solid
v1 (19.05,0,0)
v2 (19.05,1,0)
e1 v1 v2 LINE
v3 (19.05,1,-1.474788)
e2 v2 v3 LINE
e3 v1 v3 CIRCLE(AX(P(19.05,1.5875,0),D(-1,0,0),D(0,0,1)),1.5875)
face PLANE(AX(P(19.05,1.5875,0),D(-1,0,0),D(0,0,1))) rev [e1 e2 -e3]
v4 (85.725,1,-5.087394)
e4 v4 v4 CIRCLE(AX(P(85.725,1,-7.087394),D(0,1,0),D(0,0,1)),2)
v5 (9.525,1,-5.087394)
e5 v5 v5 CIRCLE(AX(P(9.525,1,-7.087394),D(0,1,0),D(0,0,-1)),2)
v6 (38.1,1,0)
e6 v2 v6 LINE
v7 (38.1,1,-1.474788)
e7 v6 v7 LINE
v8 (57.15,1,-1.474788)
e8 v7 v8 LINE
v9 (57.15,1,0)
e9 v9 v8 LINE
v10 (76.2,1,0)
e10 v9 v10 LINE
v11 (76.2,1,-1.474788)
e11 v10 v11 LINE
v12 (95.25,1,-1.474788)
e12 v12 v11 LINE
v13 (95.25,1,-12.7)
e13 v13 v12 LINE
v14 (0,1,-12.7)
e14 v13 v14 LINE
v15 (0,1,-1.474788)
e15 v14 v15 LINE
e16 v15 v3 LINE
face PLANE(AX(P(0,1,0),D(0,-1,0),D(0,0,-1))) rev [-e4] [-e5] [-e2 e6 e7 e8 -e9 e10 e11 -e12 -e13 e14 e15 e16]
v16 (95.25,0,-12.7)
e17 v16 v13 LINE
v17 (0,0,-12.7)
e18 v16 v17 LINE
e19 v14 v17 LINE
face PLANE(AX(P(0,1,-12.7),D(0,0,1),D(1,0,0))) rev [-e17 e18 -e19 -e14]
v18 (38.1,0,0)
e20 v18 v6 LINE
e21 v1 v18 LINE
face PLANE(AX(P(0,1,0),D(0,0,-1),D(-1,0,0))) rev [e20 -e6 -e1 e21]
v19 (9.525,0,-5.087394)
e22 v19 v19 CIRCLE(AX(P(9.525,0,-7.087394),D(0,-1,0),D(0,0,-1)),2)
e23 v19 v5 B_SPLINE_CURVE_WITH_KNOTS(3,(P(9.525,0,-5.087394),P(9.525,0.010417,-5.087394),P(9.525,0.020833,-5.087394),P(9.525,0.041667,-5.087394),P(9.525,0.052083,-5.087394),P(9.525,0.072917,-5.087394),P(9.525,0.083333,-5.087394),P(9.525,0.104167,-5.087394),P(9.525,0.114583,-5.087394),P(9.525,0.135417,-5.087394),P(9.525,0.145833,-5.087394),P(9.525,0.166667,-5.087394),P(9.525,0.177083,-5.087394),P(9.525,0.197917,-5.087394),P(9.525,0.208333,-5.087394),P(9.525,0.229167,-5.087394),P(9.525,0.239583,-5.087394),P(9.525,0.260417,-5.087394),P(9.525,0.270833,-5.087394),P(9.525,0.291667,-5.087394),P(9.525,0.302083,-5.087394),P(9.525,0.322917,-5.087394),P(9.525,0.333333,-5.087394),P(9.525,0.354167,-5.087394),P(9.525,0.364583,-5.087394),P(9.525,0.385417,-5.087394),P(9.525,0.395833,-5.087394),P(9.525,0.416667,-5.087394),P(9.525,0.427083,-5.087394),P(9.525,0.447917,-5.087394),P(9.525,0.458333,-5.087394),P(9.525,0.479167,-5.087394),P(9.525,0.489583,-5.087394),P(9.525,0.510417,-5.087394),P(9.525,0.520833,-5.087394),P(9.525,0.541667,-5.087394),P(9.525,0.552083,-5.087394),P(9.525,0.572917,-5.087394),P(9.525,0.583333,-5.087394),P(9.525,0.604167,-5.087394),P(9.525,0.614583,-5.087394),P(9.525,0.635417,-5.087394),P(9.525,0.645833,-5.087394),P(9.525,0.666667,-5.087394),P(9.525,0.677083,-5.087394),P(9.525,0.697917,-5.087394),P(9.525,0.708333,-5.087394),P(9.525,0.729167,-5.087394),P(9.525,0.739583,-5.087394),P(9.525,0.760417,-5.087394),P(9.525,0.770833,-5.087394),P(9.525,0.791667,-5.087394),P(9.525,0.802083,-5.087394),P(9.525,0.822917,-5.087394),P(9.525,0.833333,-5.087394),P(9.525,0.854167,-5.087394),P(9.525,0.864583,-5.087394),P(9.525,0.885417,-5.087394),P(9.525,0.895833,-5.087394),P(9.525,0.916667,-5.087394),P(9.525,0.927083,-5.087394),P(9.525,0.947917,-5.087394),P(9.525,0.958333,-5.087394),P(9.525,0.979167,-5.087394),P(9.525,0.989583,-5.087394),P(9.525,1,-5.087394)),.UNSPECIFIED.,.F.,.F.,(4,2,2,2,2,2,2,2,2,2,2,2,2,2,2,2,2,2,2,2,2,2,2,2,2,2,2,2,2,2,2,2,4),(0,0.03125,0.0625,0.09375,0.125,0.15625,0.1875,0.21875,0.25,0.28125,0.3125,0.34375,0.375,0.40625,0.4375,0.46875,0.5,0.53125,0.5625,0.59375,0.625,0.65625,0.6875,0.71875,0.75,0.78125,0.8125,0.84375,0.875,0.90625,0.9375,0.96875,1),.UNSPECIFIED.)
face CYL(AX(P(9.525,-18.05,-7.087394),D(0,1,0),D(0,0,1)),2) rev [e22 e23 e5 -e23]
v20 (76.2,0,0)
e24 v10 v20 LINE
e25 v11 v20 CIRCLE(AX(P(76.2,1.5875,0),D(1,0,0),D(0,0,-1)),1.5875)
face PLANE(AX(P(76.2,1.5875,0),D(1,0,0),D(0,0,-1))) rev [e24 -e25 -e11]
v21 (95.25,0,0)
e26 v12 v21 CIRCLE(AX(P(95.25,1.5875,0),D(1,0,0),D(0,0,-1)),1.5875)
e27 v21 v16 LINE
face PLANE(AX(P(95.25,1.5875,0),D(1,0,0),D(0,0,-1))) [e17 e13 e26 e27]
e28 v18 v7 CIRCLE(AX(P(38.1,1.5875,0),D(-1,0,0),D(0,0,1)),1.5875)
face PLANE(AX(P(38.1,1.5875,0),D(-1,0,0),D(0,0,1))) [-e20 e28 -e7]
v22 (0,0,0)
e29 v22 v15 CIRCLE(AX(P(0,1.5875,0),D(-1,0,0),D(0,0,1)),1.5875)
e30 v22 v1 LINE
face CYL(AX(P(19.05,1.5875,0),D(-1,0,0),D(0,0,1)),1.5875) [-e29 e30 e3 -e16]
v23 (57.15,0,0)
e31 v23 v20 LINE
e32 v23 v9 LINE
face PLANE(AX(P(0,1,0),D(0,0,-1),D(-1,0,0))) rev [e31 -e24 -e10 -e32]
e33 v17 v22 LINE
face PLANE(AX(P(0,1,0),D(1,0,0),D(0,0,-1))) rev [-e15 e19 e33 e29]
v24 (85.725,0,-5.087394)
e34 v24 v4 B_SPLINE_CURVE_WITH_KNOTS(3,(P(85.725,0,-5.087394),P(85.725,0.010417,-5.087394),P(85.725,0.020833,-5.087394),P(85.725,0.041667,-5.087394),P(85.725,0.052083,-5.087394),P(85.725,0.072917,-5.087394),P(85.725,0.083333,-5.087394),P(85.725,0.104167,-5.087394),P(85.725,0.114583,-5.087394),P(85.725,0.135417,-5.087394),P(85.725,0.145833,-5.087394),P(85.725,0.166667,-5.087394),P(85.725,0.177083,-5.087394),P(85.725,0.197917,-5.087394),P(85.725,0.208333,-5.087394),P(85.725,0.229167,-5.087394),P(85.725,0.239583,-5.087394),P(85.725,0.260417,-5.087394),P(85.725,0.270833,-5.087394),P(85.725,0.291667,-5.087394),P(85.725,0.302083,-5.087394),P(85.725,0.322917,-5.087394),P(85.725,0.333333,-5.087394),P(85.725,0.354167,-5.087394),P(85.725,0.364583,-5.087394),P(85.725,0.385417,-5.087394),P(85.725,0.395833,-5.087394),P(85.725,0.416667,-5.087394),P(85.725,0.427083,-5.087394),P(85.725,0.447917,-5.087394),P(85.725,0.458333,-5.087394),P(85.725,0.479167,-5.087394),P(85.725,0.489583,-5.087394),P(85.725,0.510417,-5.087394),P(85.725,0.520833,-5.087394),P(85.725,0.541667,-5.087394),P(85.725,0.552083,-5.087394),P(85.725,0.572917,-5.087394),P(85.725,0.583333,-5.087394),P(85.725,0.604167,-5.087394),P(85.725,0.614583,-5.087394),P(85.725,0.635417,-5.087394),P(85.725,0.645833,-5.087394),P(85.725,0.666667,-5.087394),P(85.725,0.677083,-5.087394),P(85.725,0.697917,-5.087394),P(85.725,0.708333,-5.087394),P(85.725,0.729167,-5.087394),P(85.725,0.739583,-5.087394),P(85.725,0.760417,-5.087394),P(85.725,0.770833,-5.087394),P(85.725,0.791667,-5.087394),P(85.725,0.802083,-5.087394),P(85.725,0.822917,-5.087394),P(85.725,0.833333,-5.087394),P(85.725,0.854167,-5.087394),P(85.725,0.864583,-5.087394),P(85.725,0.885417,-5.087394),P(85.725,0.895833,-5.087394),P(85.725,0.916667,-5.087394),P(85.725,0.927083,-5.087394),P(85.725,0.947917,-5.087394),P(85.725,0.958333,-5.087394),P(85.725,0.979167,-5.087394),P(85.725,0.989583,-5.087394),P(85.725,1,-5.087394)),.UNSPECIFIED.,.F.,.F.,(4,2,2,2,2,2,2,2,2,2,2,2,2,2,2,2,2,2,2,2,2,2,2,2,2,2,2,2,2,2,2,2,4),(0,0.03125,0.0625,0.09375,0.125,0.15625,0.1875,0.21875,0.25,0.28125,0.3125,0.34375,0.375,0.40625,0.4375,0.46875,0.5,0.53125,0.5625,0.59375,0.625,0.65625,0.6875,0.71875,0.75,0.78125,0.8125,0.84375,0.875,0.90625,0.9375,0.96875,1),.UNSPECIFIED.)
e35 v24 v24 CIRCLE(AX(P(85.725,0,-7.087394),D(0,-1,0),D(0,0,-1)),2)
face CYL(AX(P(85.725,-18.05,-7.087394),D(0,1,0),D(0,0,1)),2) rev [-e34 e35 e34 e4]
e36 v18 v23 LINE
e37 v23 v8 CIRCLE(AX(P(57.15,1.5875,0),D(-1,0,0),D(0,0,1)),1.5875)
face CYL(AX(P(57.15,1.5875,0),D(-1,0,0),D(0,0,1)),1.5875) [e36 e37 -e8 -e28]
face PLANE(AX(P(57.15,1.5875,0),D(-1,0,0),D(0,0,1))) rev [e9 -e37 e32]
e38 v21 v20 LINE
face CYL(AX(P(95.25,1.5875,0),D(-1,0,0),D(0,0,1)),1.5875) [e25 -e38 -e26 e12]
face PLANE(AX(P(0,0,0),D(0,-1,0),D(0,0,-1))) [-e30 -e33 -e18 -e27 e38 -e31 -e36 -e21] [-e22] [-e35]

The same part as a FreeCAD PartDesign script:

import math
import FreeCAD as App
import Part
import Sketcher

V = App.Vector
Q = App.Units.Quantity


def add_polygon(sketch, points):
    """Adds a closed chain of lines whose ends are joined by coincident constraints."""
    first, n = sketch.GeometryCount, len(points)
    for a, b in zip(points, points[1:] + points[:1]):
        sketch.addGeometry(Part.LineSegment(App.Vector(*a, 0), App.Vector(*b, 0)), False)
    for i in range(n):
        sketch.addConstraint(Sketcher.Constraint("Coincident", first + i, 2, first + (i + 1) % n, 1))

doc = App.newDocument("Part")
body = doc.addObject("PartDesign::Body", "Body")

# Sketch on XZ plane
sketch1 = body.newObject("Sketcher::SketchObject", "Sketch")
sketch1.AttachmentSupport = (doc.getObject("XZ_Plane"), [""])
sketch1.MapMode = "FlatFace"
add_polygon(sketch1, [(0, -13), (0, 0), (38, 0), (38, -13)])  # lines 0-3
sketch1.addConstraint(Sketcher.Constraint("Vertical", 0))
sketch1.addConstraint(Sketcher.Constraint("Horizontal", 1))
sketch1.addConstraint(Sketcher.Constraint("Vertical", 2))
sketch1.addConstraint(Sketcher.Constraint("Horizontal", 3))
sketch1.addConstraint(Sketcher.Constraint("Coincident", 0, 2, -1, 1))
sketch1.addConstraint(Sketcher.Constraint("DistanceX", 1, 1, 1, 2, Q("1.5 in")))
sketch1.addConstraint(Sketcher.Constraint("DistanceY", 0, 1, 0, 2, Q("0.5 in")))
pad1 = body.newObject("PartDesign::Pad", "Pad")
pad1.Profile = sketch1
pad1.Length = 1
pad1.Reversed = True

# Sketch on YZ plane
sketch2 = body.newObject("Sketcher::SketchObject", "Sketch001")
sketch2.AttachmentSupport = (doc.getObject("YZ_Plane"), [""])
sketch2.MapMode = "FlatFace"
sketch2.addGeometry(Part.Circle(V(1.6, 0, 0), V(0, 0, 1), 1.6), False)
sketch2.addConstraint(Sketcher.Constraint("PointOnObject", 0, 3, -1))
sketch2.addConstraint(Sketcher.Constraint("Diameter", 0, Q("0.125 in")))
sketch2.addConstraint(Sketcher.Constraint("DistanceX", -1, 1, 0, 3, Q("0.0625 in")))
pad2 = body.newObject("PartDesign::Pad", "Pad001")
pad2.Profile = sketch2
pad2.Length = Q("0.75 in")
doc.recompute()

linearpattern = body.newObject("PartDesign::LinearPattern", "LinearPattern")
linearpattern.Originals = [pad1, pad2]
linearpattern.Direction = (doc.getObject("X_Axis"), [""])
linearpattern.Mode = "offset"
linearpattern.Offset = Q("1.5 in")
linearpattern.Occurrences = 2
body.Tip = linearpattern

# Sketch on YZ plane
sketch3 = body.newObject("Sketcher::SketchObject", "Sketch002")
sketch3.AttachmentSupport = (doc.getObject("YZ_Plane"), [""])
sketch3.MapMode = "FlatFace"
sketch3.AttachmentOffset = App.Placement(V(0, 0, 3 * 25.4), App.Rotation())
sketch3.addGeometry(Part.LineSegment(V(0, 0, 0), V(0, -12.7, 0)), False)
sketch3.addGeometry(Part.LineSegment(V(0, -12.7, 0), V(1, -12.7, 0)), False)
sketch3.addGeometry(Part.LineSegment(V(1, -12.7, 0), V(1, -1.5, 0)), False)
sketch3.addGeometry(Part.ArcOfCircle(Part.Circle(V(1.6, 0, 0), V(0, 0, 1), 1.6), math.radians(-112), math.radians(180)), False)
sketch3.addConstraint(Sketcher.Constraint("Coincident", 0, 2, 1, 1))
sketch3.addConstraint(Sketcher.Constraint("Coincident", 1, 2, 2, 1))
sketch3.addConstraint(Sketcher.Constraint("Coincident", 2, 2, 3, 1))
sketch3.addConstraint(Sketcher.Constraint("Tangent", 3, 2, 0, 1))
sketch3.addConstraint(Sketcher.Constraint("Vertical", 0))
sketch3.addConstraint(Sketcher.Constraint("Horizontal", 1))
sketch3.addConstraint(Sketcher.Constraint("Vertical", 2))
sketch3.addConstraint(Sketcher.Constraint("Coincident", 3, 2, -1, 1))
sketch3.addConstraint(Sketcher.Constraint("DistanceY", 0, 2, 0, 1, Q("0.5 in")))
sketch3.addConstraint(Sketcher.Constraint("Radius", 3, Q("0.0625 in")))
sketch3.addConstraint(Sketcher.Constraint("DistanceX", 1, 1, 1, 2, Q("1 mm")))
pad3 = body.newObject("PartDesign::Pad", "Pad002")
pad3.Profile = sketch3
pad3.Length = Q("0.75 in")

# Sketch on XZ plane
sketch4 = body.newObject("Sketcher::SketchObject", "Sketch003")
sketch4.AttachmentSupport = (doc.getObject("XZ_Plane"), [""])
sketch4.MapMode = "FlatFace"
sketch4.AttachmentOffset = App.Placement(V(0, 0, -1), App.Rotation())
sketch4.addGeometry(Part.Circle(V(85.7, -7.1, 0), V(0, 0, 1), 2), False)
sketch4.addGeometry(Part.Circle(V(9.5, -7.1, 0), V(0, 0, 1), 2), False)
sketch4.addConstraint(Sketcher.Constraint("Equal", 0, 1))
sketch4.addConstraint(Sketcher.Constraint("Horizontal", 0, 3, 1, 3))
sketch4.addConstraint(Sketcher.Constraint("DistanceX", 1, 3, 0, 3, Q("3 in")))
sketch4.addConstraint(Sketcher.Constraint("Diameter", 0, Q("4 mm")))
sketch4.addConstraint(Sketcher.Constraint("DistanceX", -1, 1, 0, 3, Q("3.375 in")))
sketch4.addConstraint(Sketcher.Constraint("DistanceY", 0, 3, -1, 1, Q("7.087394 mm")))
pocket1 = body.newObject("PartDesign::Pocket", "Pocket")
pocket1.Profile = sketch4
pocket1.Length = Q("0.75 in")
pocket1.Reversed = True

doc.recompute()
